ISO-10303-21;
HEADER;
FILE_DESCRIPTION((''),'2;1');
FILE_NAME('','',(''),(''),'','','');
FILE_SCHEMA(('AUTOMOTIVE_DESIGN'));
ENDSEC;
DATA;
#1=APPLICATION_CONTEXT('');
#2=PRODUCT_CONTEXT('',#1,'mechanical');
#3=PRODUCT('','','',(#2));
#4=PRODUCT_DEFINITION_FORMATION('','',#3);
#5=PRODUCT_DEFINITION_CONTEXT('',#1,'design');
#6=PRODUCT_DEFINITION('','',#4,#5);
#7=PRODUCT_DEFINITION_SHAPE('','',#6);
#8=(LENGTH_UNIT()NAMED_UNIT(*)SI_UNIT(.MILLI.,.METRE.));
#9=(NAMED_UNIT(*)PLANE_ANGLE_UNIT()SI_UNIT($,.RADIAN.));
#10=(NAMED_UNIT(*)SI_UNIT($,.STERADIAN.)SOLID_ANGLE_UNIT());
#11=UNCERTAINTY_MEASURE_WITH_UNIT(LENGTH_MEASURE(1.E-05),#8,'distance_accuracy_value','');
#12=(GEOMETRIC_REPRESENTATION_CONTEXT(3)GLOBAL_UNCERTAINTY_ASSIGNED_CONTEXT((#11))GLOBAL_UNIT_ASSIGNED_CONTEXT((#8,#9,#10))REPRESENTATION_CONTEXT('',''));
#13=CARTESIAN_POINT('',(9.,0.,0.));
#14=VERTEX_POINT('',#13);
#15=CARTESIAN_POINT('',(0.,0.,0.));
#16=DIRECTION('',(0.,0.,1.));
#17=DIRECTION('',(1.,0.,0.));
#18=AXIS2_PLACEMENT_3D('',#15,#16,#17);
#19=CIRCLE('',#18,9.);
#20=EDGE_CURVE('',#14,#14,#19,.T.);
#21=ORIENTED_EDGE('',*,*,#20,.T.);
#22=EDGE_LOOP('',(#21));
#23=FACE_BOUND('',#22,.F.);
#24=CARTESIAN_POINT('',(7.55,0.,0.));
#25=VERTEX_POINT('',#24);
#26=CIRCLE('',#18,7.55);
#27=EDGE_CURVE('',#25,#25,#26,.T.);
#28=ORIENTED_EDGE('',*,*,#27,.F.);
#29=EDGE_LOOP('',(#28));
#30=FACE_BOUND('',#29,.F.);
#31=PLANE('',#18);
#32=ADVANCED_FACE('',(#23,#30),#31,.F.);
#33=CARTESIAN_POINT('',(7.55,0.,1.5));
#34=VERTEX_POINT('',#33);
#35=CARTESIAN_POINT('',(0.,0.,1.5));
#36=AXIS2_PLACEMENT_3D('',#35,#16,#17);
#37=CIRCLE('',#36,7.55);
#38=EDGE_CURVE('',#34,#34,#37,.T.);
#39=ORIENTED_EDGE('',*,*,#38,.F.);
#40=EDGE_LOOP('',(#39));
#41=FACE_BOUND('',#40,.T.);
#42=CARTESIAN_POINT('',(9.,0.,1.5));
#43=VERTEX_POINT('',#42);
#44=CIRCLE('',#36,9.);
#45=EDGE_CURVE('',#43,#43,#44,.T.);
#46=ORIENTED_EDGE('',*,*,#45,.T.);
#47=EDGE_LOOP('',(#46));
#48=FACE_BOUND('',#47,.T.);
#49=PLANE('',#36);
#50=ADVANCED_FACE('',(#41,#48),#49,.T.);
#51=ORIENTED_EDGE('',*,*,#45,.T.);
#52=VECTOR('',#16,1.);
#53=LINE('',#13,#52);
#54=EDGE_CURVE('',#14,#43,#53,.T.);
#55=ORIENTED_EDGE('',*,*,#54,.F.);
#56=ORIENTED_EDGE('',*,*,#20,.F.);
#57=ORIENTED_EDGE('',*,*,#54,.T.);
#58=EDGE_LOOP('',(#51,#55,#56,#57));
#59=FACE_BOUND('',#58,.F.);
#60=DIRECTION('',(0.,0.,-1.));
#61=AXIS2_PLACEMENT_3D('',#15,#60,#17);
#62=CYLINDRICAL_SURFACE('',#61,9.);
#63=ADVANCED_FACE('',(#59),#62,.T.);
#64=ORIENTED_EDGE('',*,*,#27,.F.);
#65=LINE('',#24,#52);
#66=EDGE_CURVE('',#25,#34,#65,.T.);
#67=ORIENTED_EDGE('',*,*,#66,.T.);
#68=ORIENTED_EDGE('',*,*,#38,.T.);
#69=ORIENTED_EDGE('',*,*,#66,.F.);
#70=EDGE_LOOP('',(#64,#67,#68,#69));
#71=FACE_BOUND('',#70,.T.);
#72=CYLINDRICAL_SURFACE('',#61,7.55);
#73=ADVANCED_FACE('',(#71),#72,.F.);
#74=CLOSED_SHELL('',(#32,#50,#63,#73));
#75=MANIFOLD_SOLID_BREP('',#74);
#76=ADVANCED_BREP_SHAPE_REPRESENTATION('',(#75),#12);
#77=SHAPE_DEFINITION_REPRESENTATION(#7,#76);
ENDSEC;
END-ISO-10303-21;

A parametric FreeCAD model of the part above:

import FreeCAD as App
import Part
import Sketcher
from FreeCAD import Vector
Q = App.Units.Quantity

doc = App.newDocument("Part")
body = doc.addObject("PartDesign::Body", "Body")

# Sketch on XY plane
sketch1 = body.newObject("Sketcher::SketchObject", "Sketch")
sketch1.AttachmentSupport = (doc.getObject("XY_Plane"), [""])
sketch1.MapMode = "FlatFace"
sketch1.addGeometry(Part.Circle(Vector(0, 0, 0), Vector(0, 0, 1), 9), False)
sketch1.addGeometry(Part.Circle(Vector(0, 0, 0), Vector(0, 0, 1), 8), False)
sketch1.addConstraint(Sketcher.Constraint("Coincident", 0, 3, -1, 1))
sketch1.addConstraint(Sketcher.Constraint("Coincident", 1, 3, -1, 1))
sketch1.addConstraint(Sketcher.Constraint("Diameter", 0, Q("18 mm")))
sketch1.addConstraint(Sketcher.Constraint("Diameter", 1, Q("15.1 mm")))
pad1 = body.newObject("PartDesign::Pad", "Pad")
pad1.Profile = sketch1
pad1.Length = 1.5

doc.recompute()
